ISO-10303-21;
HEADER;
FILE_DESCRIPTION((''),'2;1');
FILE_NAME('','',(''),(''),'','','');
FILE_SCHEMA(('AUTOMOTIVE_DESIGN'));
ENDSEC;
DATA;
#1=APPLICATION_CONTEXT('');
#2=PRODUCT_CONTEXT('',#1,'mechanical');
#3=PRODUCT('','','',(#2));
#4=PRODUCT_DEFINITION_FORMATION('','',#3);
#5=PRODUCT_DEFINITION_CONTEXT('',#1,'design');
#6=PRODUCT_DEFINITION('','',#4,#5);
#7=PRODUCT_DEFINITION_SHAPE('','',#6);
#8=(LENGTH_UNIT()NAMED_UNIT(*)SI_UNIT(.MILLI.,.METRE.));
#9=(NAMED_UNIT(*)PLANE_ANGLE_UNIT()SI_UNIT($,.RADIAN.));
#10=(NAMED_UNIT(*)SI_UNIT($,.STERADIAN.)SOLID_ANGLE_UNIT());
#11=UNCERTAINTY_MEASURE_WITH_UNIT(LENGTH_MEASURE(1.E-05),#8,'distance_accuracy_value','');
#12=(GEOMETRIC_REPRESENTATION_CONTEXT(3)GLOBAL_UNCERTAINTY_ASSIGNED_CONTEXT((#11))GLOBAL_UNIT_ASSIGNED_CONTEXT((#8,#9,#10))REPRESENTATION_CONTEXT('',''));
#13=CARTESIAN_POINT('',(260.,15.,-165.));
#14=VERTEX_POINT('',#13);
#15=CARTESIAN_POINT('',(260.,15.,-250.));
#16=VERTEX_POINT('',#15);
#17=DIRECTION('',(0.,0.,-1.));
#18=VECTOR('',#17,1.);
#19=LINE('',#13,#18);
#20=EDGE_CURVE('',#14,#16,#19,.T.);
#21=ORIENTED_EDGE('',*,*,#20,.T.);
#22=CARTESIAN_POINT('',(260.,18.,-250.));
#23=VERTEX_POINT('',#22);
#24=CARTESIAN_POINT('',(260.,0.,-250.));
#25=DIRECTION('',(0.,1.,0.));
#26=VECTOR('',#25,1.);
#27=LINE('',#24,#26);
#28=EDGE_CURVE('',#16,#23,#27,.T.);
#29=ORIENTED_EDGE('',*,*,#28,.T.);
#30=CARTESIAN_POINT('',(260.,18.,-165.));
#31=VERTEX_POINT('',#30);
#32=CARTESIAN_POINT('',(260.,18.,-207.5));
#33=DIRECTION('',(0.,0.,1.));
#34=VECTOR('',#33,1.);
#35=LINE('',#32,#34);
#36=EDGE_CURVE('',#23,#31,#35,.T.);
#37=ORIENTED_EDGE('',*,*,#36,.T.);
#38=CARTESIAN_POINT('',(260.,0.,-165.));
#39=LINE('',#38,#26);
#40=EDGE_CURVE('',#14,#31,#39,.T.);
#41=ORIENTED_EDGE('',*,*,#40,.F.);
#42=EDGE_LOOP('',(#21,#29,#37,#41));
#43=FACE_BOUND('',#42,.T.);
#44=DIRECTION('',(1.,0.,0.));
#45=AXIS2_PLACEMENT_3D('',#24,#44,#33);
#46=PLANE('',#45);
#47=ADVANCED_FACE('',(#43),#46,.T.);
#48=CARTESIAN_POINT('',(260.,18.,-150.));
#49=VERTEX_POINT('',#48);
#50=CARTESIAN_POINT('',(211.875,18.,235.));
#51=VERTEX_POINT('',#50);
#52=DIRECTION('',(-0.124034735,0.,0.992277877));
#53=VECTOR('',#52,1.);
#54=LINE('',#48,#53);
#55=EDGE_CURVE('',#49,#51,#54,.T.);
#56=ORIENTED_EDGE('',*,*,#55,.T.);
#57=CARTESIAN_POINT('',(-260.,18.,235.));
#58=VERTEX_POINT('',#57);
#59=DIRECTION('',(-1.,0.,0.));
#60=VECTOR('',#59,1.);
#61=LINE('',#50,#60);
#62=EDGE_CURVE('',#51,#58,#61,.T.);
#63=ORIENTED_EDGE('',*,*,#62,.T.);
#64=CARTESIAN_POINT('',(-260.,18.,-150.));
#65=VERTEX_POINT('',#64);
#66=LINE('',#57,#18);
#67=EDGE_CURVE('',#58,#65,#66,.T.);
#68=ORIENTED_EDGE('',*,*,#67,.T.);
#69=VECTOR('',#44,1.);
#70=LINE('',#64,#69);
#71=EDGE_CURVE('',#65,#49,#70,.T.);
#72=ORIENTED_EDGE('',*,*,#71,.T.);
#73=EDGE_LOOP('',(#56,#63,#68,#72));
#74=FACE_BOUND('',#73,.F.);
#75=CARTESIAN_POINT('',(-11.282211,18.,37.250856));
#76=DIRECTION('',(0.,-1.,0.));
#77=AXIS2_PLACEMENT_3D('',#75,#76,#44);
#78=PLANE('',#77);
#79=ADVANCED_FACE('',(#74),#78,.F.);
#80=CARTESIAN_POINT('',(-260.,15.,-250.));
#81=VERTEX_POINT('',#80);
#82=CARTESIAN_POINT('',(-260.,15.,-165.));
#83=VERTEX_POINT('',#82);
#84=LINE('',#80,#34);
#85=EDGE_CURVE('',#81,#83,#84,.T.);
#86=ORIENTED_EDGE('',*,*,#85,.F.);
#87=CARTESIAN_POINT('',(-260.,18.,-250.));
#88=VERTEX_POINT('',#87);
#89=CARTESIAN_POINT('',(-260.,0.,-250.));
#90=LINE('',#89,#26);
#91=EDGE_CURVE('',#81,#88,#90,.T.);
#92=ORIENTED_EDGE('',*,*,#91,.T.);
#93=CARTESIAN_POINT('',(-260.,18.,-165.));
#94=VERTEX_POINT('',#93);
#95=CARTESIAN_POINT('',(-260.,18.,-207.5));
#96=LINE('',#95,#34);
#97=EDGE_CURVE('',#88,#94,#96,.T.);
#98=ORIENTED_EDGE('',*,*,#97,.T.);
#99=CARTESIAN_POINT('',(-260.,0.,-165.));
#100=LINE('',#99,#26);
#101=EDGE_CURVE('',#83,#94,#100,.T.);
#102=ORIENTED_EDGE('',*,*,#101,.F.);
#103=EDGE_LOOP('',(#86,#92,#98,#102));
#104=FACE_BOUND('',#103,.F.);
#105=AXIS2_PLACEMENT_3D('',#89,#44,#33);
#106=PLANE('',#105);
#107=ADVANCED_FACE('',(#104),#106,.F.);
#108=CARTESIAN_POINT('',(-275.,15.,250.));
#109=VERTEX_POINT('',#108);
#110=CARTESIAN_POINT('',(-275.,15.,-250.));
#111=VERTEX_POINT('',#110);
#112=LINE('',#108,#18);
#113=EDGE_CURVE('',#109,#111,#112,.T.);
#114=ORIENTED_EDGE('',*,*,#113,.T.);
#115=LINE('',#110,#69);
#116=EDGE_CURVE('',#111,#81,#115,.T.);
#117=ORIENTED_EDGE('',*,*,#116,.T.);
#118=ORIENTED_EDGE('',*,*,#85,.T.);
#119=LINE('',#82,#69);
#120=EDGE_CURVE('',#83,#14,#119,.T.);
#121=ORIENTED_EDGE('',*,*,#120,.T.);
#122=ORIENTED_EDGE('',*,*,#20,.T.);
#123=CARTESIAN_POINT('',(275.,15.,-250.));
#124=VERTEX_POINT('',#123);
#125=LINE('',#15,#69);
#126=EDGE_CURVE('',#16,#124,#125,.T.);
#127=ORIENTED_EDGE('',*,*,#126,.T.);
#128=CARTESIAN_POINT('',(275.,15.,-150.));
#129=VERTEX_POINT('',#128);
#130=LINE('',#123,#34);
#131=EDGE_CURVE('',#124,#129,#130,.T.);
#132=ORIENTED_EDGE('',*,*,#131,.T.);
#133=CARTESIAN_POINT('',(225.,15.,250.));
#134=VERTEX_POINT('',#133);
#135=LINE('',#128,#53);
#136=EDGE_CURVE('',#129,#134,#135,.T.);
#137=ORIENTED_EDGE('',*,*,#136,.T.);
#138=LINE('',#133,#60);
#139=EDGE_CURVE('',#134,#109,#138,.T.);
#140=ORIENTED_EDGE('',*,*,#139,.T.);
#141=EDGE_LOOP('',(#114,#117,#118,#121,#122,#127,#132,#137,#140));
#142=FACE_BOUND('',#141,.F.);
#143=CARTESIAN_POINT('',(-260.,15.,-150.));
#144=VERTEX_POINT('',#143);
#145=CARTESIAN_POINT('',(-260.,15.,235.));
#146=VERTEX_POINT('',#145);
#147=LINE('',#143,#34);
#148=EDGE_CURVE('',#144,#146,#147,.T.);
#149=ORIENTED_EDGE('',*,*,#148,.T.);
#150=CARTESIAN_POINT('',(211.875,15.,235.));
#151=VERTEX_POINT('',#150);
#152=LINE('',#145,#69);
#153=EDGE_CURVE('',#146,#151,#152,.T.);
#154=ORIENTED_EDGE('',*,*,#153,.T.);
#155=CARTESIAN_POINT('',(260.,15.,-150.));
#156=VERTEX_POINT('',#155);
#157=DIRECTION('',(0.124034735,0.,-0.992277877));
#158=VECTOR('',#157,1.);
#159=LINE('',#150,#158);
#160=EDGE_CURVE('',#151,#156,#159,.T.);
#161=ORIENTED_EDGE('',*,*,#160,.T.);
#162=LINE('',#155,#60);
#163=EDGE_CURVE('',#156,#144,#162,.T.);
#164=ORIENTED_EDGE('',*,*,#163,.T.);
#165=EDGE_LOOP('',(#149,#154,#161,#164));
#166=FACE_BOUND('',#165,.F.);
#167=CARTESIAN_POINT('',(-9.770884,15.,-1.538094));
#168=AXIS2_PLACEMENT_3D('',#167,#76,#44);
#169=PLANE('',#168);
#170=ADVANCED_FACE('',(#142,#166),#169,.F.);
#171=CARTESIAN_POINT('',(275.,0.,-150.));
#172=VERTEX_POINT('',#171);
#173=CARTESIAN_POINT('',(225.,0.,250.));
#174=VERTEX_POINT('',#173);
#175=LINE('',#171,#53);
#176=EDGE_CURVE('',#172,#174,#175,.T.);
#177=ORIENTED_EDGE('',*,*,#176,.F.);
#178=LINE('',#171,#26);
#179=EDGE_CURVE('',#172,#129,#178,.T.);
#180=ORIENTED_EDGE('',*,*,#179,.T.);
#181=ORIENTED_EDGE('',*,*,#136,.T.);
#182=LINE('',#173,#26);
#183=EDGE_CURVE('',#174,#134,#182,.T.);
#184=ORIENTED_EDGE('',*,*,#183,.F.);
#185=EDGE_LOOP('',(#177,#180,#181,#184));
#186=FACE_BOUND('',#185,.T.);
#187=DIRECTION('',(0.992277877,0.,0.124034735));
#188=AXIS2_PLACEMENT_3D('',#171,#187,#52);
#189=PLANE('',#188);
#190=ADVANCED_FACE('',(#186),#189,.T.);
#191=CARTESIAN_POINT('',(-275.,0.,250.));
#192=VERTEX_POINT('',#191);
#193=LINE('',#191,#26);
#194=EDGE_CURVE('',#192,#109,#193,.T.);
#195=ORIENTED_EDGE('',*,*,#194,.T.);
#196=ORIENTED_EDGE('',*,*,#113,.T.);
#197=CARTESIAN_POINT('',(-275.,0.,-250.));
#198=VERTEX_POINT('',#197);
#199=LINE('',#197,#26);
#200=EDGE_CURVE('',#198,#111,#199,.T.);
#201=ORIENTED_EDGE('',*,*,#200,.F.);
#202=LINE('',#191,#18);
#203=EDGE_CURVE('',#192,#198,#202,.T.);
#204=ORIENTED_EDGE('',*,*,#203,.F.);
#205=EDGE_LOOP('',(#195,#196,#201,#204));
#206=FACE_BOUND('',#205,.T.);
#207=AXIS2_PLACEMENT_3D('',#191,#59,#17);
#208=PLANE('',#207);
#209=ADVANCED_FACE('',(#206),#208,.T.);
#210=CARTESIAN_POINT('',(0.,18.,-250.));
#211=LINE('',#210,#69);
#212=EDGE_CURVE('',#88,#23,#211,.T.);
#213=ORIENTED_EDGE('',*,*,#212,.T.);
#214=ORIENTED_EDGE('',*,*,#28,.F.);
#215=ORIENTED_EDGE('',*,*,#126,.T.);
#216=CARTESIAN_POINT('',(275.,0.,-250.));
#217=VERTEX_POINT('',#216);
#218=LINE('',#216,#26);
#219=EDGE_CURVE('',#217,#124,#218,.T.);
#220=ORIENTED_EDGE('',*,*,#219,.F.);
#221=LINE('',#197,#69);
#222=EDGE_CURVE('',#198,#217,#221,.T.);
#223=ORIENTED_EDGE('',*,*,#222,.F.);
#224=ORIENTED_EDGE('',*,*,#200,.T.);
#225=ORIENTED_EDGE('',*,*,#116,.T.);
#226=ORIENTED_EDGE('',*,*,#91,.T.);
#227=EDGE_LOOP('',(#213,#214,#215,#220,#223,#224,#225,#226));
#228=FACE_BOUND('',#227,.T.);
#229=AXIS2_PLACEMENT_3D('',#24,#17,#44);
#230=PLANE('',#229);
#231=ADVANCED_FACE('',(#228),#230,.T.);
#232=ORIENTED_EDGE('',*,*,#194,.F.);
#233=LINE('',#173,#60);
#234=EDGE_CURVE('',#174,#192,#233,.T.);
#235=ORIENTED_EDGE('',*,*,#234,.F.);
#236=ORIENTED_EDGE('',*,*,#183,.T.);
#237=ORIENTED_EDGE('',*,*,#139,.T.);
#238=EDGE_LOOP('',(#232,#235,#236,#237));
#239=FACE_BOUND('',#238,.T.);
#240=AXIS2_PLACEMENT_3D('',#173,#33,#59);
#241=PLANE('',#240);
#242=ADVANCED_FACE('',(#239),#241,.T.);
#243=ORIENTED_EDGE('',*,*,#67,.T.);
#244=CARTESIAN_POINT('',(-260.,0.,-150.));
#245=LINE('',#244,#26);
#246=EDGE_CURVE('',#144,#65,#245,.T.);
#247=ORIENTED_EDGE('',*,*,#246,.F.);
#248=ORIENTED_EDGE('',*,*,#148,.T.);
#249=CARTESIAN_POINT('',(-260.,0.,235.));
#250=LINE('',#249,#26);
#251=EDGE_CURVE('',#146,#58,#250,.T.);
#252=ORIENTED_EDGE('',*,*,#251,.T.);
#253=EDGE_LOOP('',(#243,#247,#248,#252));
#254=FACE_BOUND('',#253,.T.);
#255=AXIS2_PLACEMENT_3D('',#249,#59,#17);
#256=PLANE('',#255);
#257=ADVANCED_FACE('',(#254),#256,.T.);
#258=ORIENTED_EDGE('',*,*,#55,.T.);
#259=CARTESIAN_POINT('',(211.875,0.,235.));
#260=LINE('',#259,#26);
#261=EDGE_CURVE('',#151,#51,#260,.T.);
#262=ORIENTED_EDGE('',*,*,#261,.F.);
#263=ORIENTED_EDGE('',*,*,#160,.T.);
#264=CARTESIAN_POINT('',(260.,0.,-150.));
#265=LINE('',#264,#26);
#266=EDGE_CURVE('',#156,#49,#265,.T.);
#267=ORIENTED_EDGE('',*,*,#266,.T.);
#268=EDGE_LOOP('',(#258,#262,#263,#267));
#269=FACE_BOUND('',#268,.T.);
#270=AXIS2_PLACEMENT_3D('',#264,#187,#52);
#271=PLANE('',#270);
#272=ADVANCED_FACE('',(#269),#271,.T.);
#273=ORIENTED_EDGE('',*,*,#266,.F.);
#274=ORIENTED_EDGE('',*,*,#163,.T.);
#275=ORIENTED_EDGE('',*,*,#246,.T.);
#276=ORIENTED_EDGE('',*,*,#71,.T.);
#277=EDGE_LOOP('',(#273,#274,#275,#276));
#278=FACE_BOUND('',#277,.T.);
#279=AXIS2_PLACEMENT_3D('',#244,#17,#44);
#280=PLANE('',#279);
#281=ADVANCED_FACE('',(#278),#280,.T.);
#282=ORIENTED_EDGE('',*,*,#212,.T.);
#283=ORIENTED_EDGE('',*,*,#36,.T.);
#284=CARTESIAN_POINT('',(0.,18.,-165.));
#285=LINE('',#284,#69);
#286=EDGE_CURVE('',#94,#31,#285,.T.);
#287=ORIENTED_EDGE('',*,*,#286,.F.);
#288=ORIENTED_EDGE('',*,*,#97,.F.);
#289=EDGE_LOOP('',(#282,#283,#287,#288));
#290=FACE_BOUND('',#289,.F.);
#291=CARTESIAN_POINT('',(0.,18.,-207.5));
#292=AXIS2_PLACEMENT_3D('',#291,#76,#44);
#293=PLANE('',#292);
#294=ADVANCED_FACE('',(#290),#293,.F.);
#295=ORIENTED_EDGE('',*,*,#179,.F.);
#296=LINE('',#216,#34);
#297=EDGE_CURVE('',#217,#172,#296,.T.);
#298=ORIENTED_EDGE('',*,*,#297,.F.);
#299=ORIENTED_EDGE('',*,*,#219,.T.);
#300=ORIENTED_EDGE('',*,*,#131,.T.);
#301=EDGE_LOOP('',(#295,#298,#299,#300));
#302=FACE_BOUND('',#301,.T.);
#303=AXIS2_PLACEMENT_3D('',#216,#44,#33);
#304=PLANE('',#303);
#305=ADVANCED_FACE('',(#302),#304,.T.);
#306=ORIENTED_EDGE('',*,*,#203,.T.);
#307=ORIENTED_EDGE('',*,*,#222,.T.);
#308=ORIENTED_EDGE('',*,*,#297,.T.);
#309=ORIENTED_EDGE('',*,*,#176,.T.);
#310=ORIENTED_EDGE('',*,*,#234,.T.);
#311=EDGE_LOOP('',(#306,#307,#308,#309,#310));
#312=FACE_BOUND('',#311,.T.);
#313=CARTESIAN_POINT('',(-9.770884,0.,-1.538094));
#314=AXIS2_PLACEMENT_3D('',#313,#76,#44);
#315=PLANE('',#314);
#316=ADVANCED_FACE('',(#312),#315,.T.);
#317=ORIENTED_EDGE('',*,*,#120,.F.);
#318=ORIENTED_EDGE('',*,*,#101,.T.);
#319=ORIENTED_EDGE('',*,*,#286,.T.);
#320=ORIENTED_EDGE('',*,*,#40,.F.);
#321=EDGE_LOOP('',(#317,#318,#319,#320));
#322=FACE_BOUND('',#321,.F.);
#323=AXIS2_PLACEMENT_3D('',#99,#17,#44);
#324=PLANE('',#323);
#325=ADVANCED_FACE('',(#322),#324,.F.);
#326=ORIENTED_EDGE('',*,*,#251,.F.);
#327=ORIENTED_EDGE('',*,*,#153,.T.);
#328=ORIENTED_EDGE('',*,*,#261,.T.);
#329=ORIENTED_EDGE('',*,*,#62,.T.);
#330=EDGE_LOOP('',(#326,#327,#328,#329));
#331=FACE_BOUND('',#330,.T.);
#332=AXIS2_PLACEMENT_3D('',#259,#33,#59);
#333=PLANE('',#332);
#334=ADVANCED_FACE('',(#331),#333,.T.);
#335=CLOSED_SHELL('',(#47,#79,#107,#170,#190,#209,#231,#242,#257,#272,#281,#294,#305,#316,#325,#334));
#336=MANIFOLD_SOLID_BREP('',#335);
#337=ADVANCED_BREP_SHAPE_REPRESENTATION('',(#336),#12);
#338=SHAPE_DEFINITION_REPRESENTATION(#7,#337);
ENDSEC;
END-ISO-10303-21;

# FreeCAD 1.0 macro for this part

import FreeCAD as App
import Part
import Sketcher

V = App.Vector


def add_polygon(sketch, points):
    """Adds a closed chain of lines whose ends are joined by coincident constraints."""
    first, n = sketch.GeometryCount, len(points)
    for a, b in zip(points, points[1:] + points[:1]):
        sketch.addGeometry(Part.LineSegment(App.Vector(*a, 0), App.Vector(*b, 0)), False)
    for i in range(n):
        sketch.addConstraint(Sketcher.Constraint("Coincident", first + i, 2, first + (i + 1) % n, 1))

doc = App.newDocument("Part")
body = doc.addObject("PartDesign::Body", "Body")

# Sketch on XZ plane
sketch1 = doc.addObject("Sketcher::SketchObject", "Sketch")
body.addObject(sketch1)
sketch1.AttachmentSupport = (doc.XZ_Plane, [""])
sketch1.MapMode = "FlatFace"
add_polygon(sketch1, [(-260, -150), (260, -150), (212, 235), (-260, 235)])  # lines 0-3
sketch1.addConstraint([
    Sketcher.Constraint("Horizontal", 0),
    Sketcher.Constraint("Horizontal", 2),
    Sketcher.Constraint("Vertical", 3),
    Sketcher.Constraint("DistanceX", 0, 1, 0, 2, 520.0),
    Sketcher.Constraint("DistanceY", 3, 2, 3, 1, 385.0),
    Sketcher.Constraint("DistanceX", -1, 1, 0, 2, 260.0),
    Sketcher.Constraint("DistanceY", 0, 2, -1, 1, 150.0),
    Sketcher.Constraint("DistanceX", 2, 2, 2, 1, 471.875),
])
pad1 = doc.addObject("PartDesign::Pad", "Pad")
body.addObject(pad1)
pad1.Profile = sketch1
pad1.Length = 18
pad1.Reversed = True
body2 = doc.addObject("PartDesign::Body", "Body001")

# Sketch on XZ plane
sketch2 = doc.addObject("Sketcher::SketchObject", "Sketch001")
body2.addObject(sketch2)
sketch2.AttachmentSupport = (doc.getObject("XZ_Plane001"), [""])
sketch2.MapMode = "FlatFace"
add_polygon(sketch2, [(-260, -165), (-260, -250), (260, -250), (260, -165)])  # lines 0-3
sketch2.addConstraint([
    Sketcher.Constraint("Vertical", 0),
    Sketcher.Constraint("Horizontal", 1),
    Sketcher.Constraint("Vertical", 2),
    Sketcher.Constraint("Horizontal", 3),
    Sketcher.Constraint("DistanceX", 1, 1, 1, 2, 520.0),
    Sketcher.Constraint("DistanceY", 0, 2, 0, 1, 85.0),
    Sketcher.Constraint("DistanceX", 0, 2, -1, 1, 260.0),
    Sketcher.Constraint("DistanceY", 0, 2, -1, 1, 250.0),
])
pad2 = doc.addObject("PartDesign::Pad", "Pad001")
body2.addObject(pad2)
pad2.Profile = sketch2
pad2.Length = 18
pad2.Reversed = True
body.AllowCompound = True
doc.recompute()

boolean = doc.addObject("PartDesign::Boolean", "Boolean")
body.addObject(boolean)
boolean.Type = "Fuse"
boolean.addObjects([body2])

# Sketch on XZ plane
sketch3 = doc.addObject("Sketcher::SketchObject", "Sketch002")
body.addObject(sketch3)
sketch3.AttachmentSupport = (doc.XZ_Plane, [""])
sketch3.MapMode = "FlatFace"
add_polygon(sketch3, [(275, -150), (225, 250), (-275, 250), (-275, -250), (-260, -250), (-260, -165), (260, -165), (260, -250), (275, -250)])  # lines 0-8
add_polygon(sketch3, [(-260, 235), (212, 235), (260, -150), (-260, -150)])  # lines 9-12
sketch3.addConstraint([
    Sketcher.Constraint("Horizontal", 1),
    Sketcher.Constraint("Vertical", 2),
    Sketcher.Constraint("Horizontal", 3),
    Sketcher.Constraint("Vertical", 4),
    Sketcher.Constraint("Horizontal", 5),
    Sketcher.Constraint("Vertical", 6),
    Sketcher.Constraint("Horizontal", 7),
    Sketcher.Constraint("Vertical", 8),
    Sketcher.Constraint("Horizontal", 9),
    Sketcher.Constraint("Horizontal", 11),
    Sketcher.Constraint("Vertical", 12),
    Sketcher.Constraint("Symmetric", 1, 2, 7, 2, -1, 1),
    Sketcher.Constraint("Symmetric", 3, 2, 6, 2, -2),
    Sketcher.Constraint("Parallel", 0, 10),
    Sketcher.Constraint("Horizontal", 8, 2, 10, 2),
    Sketcher.Constraint("Vertical", 6, 2, 10, 2),
    Sketcher.Constraint("Vertical", 4, 2, 11, 2),
    Sketcher.Constraint("Equal", 1, 2),
    Sketcher.Constraint("DistanceX", 1, 2, 1, 1, 500.0),
    Sketcher.Constraint("DistanceX", 3, 1, 3, 2, 15.0),
    Sketcher.Constraint("DistanceX", 5, 1, 5, 2, 520.0),
    Sketcher.Constraint("DistanceY", 4, 1, 4, 2, 85.0),
    Sketcher.Constraint("DistanceY", 8, 1, 8, 2, 100.0),
    Sketcher.Constraint("DistanceY", 12, 1, 12, 2, 385.0),
])
pad3 = doc.addObject("PartDesign::Pad", "Pad002")
body.addObject(pad3)
pad3.Profile = sketch3
pad3.Length = 15
pad3.Reversed = True

doc.recompute()
